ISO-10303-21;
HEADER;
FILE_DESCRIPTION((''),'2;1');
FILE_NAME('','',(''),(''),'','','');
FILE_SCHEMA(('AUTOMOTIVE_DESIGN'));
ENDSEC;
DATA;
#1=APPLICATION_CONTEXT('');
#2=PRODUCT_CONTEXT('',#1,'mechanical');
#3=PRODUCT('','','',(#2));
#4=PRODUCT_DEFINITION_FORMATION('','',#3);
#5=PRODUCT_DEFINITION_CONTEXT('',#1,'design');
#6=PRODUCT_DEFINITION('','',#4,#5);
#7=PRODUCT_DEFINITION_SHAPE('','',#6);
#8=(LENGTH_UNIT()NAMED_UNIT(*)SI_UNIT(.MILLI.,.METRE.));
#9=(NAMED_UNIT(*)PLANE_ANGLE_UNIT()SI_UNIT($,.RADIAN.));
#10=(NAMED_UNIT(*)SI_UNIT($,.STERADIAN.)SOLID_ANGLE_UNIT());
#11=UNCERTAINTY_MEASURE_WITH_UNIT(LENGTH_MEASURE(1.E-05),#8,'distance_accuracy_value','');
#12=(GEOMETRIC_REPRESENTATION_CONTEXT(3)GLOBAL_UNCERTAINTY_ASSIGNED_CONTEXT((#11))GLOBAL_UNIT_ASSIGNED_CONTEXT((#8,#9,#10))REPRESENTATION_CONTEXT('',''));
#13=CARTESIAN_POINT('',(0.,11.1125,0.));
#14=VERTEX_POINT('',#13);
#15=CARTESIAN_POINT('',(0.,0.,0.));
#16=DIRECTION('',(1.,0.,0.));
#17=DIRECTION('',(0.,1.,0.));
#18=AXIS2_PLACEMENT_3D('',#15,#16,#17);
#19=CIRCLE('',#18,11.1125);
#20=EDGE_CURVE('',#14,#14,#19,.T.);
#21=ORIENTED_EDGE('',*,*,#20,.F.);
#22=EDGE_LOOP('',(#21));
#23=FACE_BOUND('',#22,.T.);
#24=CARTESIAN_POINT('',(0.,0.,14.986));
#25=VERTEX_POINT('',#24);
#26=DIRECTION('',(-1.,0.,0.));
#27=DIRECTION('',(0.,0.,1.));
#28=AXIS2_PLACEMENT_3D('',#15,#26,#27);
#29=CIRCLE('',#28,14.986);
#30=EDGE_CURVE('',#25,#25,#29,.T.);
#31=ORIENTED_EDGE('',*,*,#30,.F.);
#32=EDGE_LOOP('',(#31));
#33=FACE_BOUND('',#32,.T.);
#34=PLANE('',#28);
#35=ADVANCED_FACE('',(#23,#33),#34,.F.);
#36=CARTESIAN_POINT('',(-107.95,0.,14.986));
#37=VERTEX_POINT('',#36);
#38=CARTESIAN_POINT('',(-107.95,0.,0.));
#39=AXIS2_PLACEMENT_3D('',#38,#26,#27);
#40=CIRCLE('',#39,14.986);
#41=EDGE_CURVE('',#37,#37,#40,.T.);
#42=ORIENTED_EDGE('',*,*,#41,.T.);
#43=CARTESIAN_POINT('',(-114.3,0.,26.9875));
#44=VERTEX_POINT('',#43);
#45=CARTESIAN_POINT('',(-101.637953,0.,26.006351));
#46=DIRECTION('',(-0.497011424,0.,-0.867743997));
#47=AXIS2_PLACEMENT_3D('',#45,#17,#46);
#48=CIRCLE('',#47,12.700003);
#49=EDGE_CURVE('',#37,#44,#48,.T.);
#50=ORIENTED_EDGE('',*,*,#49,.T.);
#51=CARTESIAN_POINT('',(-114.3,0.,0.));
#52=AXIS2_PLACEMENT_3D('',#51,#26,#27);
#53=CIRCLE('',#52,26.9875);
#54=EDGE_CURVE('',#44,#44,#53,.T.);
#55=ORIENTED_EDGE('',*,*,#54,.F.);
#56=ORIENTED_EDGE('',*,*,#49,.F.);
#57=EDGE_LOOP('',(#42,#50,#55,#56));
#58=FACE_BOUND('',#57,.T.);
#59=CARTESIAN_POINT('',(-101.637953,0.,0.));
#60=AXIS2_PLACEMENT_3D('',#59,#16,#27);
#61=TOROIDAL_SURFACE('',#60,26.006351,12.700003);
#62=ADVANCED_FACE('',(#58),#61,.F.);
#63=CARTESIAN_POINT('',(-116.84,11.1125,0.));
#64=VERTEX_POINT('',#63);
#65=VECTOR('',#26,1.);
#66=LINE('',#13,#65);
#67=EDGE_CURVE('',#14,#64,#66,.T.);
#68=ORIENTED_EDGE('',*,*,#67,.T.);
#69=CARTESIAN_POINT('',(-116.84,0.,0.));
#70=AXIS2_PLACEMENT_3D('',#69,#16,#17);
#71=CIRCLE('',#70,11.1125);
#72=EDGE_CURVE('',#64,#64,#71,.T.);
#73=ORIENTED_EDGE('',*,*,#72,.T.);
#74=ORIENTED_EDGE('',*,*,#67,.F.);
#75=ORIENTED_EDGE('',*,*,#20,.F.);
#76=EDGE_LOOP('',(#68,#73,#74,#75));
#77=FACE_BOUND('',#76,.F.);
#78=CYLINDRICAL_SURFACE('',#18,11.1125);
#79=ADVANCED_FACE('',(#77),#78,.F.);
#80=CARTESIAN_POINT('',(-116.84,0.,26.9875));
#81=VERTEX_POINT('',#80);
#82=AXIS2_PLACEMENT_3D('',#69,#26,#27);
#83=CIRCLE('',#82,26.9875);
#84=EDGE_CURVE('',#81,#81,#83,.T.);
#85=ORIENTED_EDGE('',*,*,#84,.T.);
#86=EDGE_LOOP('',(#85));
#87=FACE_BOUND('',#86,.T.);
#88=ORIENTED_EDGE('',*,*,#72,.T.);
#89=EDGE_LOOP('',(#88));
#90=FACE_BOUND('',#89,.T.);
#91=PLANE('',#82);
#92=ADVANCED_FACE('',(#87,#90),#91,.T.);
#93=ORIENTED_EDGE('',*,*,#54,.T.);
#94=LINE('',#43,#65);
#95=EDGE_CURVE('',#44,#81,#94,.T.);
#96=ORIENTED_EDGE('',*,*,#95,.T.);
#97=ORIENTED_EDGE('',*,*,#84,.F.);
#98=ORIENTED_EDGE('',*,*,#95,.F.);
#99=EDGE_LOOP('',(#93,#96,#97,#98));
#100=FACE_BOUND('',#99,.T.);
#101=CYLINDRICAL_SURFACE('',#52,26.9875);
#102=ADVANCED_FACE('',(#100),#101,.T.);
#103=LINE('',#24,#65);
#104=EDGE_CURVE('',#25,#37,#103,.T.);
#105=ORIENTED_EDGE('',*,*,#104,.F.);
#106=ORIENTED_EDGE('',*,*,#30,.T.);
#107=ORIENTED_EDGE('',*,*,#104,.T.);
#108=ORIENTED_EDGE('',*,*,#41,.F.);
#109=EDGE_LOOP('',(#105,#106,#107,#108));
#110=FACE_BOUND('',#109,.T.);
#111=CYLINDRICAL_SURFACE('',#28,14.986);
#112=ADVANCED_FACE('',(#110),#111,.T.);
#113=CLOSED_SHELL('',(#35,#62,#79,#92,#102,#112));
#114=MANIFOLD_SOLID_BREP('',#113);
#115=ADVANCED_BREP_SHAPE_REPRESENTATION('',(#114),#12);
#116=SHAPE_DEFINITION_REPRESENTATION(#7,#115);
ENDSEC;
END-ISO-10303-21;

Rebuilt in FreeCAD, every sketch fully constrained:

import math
import FreeCAD as App
import Part
import Sketcher
Q = App.Units.Quantity

doc = App.newDocument("Part")
body = doc.addObject("PartDesign::Body", "Body")

sketch1 = body.newObject("Sketcher::SketchObject", "Sketch")
sketch1.AttachmentSupport = (doc.getObject("XZ_Plane"), [""])
sketch1.MapMode = "FlatFace"
sketch1.addGeometry([
    Part.LineSegment(App.Vector(0, 0, 0), App.Vector(0, 15, 0)),
    Part.LineSegment(App.Vector(0, 15, 0), App.Vector(-108, 15, 0)),
    Part.ArcOfCircle(Part.Circle(App.Vector(-101.6, 26, 0), App.Vector(0, 0, 1), 12.7), math.radians(176), math.radians(240)),
    Part.LineSegment(App.Vector(-114.3, 27, 0), App.Vector(-116.8, 27, 0)),
    Part.LineSegment(App.Vector(-116.8, 27, 0), App.Vector(-116.8, 0, 0)),
    Part.LineSegment(App.Vector(-116.8, 0, 0), App.Vector(0, 0, 0)),
], False)
sketch1.addConstraint([
    Sketcher.Constraint("Coincident", 0, 2, 1, 1),
    Sketcher.Constraint("Coincident", 1, 2, 2, 2),
    Sketcher.Constraint("Coincident", 2, 1, 3, 1),
    Sketcher.Constraint("Coincident", 3, 2, 4, 1),
    Sketcher.Constraint("Coincident", 4, 2, 5, 1),
    Sketcher.Constraint("Coincident", 5, 2, 0, 1),
    Sketcher.Constraint("Vertical", 0),
    Sketcher.Constraint("Horizontal", 1),
    Sketcher.Constraint("Horizontal", 3),
    Sketcher.Constraint("Vertical", 4),
    Sketcher.Constraint("Horizontal", 5),
    Sketcher.Constraint("Coincident", 5, 2, -1, 1),
    Sketcher.Constraint("Radius", 2, Q("0.5000001 in")),
    Sketcher.Constraint("DistanceX", 3, 2, 3, 1, Q("0.1 in")),
    Sketcher.Constraint("DistanceX", 5, 1, 5, 2, Q("4.6 in")),
    Sketcher.Constraint("DistanceX", 1, 2, 1, 1, Q("4.25 in")),
    Sketcher.Constraint("DistanceY", 0, 1, 0, 2, Q("0.59 in")),
    Sketcher.Constraint("DistanceY", 4, 2, 4, 1, Q("1.0625 in")),
])
revolution = body.newObject("PartDesign::Revolution", "Revolution")
revolution.Profile = sketch1
revolution.ReferenceAxis = (sketch1, ["H_Axis"])
revolution.Angle = 360

sketch2 = body.newObject("Sketcher::SketchObject", "Sketch001")
sketch2.AttachmentSupport = (doc.getObject("YZ_Plane"), [""])
sketch2.MapMode = "FlatFace"
sketch2.addGeometry(Part.Circle(App.Vector(0, 0, 0), App.Vector(0, 0, 1), 11), False)
sketch2.addConstraint([
    Sketcher.Constraint("Coincident", 0, 3, -1, 1),
    Sketcher.Constraint("Diameter", 0, Q("0.875 in")),
])
pocket1 = body.newObject("PartDesign::Pocket", "Pocket")
pocket1.Profile = sketch2
pocket1.Type = "ThroughAll"

doc.recompute()
